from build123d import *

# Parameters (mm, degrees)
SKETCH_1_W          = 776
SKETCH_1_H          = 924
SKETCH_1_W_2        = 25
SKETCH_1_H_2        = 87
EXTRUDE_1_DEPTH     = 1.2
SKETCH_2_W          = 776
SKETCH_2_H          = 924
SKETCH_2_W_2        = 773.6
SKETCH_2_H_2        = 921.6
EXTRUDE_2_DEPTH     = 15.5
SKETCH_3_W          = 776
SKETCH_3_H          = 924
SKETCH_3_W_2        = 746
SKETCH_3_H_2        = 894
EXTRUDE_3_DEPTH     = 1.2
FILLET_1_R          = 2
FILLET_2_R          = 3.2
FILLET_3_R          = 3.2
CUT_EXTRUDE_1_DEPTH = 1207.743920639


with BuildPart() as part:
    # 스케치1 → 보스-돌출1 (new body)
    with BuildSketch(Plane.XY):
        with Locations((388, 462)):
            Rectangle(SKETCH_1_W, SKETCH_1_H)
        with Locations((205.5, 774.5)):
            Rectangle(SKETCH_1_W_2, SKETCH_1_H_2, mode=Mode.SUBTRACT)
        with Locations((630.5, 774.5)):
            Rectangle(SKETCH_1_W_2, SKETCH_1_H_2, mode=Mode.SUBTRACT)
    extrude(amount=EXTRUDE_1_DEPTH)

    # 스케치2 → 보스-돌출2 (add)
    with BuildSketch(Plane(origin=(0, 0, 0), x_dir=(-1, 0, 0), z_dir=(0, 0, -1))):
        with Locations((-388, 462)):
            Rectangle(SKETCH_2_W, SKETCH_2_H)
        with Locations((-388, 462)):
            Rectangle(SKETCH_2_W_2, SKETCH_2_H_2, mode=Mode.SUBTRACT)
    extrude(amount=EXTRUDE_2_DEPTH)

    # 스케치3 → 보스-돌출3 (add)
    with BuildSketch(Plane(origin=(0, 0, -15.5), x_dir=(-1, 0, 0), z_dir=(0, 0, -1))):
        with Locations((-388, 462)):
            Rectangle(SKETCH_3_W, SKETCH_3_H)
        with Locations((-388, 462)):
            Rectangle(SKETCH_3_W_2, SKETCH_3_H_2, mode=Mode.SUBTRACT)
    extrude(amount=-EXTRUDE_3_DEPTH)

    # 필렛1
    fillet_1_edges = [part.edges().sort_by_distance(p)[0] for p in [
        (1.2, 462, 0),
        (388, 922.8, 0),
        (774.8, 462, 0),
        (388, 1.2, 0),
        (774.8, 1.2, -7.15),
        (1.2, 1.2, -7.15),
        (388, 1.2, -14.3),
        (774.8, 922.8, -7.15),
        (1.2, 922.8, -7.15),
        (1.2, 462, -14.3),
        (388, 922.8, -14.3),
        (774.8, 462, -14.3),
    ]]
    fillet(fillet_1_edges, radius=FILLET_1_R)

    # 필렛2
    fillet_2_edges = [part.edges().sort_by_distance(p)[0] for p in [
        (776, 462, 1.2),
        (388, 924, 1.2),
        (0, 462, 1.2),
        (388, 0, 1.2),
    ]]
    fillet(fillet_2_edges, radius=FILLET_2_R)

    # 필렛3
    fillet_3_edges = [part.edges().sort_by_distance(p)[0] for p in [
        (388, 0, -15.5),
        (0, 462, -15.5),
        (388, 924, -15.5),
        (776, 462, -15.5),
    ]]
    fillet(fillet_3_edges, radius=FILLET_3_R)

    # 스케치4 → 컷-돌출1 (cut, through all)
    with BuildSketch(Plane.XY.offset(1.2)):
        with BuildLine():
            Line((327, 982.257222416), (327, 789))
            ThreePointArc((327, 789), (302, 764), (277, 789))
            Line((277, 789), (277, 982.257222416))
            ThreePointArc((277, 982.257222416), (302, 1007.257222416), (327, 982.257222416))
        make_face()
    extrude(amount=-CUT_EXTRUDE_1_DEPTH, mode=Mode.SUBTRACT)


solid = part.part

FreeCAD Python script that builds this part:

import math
import FreeCAD as App
import Part
import Sketcher

V = App.Vector
Q = App.Units.Quantity


def edges_at(feature, points):
    """Names of the edges that pass closest to the given points."""
    edges = feature.Shape.Edges
    near = lambda p: min(range(len(edges)), key=lambda i: edges[i].distToShape(Part.Vertex(*p))[0])
    return sorted({f"Edge{near(p) + 1}" for p in points})

doc = App.newDocument("Part")
body = doc.addObject("PartDesign::Body", "Body")

# Sketch on XY plane
sketch1 = doc.addObject("Sketcher::SketchObject", "Sketch")
body.addObject(sketch1)
sketch1.AttachmentSupport = (doc.XY_Plane, [""])
sketch1.MapMode = "FlatFace"
sketch1.addGeometry(Part.LineSegment(V(0, 924, 0), V(0, 0, 0)), False)
sketch1.addGeometry(Part.LineSegment(V(0, 0, 0), V(776, 0, 0)), False)
sketch1.addGeometry(Part.LineSegment(V(776, 0, 0), V(776, 924, 0)), False)
sketch1.addGeometry(Part.LineSegment(V(776, 924, 0), V(0, 924, 0)), False)
sketch1.addGeometry(Part.LineSegment(V(218, 731, 0), V(193, 731, 0)), False)
sketch1.addGeometry(Part.LineSegment(V(193, 731, 0), V(193, 818, 0)), False)
sketch1.addGeometry(Part.LineSegment(V(193, 818, 0), V(218, 818, 0)), False)
sketch1.addGeometry(Part.LineSegment(V(218, 818, 0), V(218, 731, 0)), False)
sketch1.addGeometry(Part.LineSegment(V(643, 731, 0), V(618, 731, 0)), False)
sketch1.addGeometry(Part.LineSegment(V(618, 731, 0), V(618, 818, 0)), False)
sketch1.addGeometry(Part.LineSegment(V(618, 818, 0), V(643, 818, 0)), False)
sketch1.addGeometry(Part.LineSegment(V(643, 818, 0), V(643, 731, 0)), False)
sketch1.addConstraint(Sketcher.Constraint("Coincident", 0, 2, 1, 1))
sketch1.addConstraint(Sketcher.Constraint("Coincident", 1, 2, 2, 1))
sketch1.addConstraint(Sketcher.Constraint("Coincident", 2, 2, 3, 1))
sketch1.addConstraint(Sketcher.Constraint("Coincident", 3, 2, 0, 1))
sketch1.addConstraint(Sketcher.Constraint("Coincident", 4, 2, 5, 1))
sketch1.addConstraint(Sketcher.Constraint("Coincident", 5, 2, 6, 1))
sketch1.addConstraint(Sketcher.Constraint("Coincident", 6, 2, 7, 1))
sketch1.addConstraint(Sketcher.Constraint("Coincident", 7, 2, 4, 1))
sketch1.addConstraint(Sketcher.Constraint("Coincident", 8, 2, 9, 1))
sketch1.addConstraint(Sketcher.Constraint("Coincident", 9, 2, 10, 1))
sketch1.addConstraint(Sketcher.Constraint("Coincident", 10, 2, 11, 1))
sketch1.addConstraint(Sketcher.Constraint("Coincident", 11, 2, 8, 1))
sketch1.addConstraint(Sketcher.Constraint("Vertical", 0))
sketch1.addConstraint(Sketcher.Constraint("Horizontal", 1))
sketch1.addConstraint(Sketcher.Constraint("Vertical", 2))
sketch1.addConstraint(Sketcher.Constraint("Horizontal", 3))
sketch1.addConstraint(Sketcher.Constraint("Horizontal", 4))
sketch1.addConstraint(Sketcher.Constraint("Vertical", 5))
sketch1.addConstraint(Sketcher.Constraint("Horizontal", 6))
sketch1.addConstraint(Sketcher.Constraint("Vertical", 7))
sketch1.addConstraint(Sketcher.Constraint("Horizontal", 8))
sketch1.addConstraint(Sketcher.Constraint("Vertical", 9))
sketch1.addConstraint(Sketcher.Constraint("Horizontal", 10))
sketch1.addConstraint(Sketcher.Constraint("Vertical", 11))
sketch1.addConstraint(Sketcher.Constraint("Coincident", 0, 2, -1, 1))
sketch1.addConstraint(Sketcher.Constraint("Horizontal", 7, 2, 8, 2))
sketch1.addConstraint(Sketcher.Constraint("Horizontal", 6, 2, 9, 2))
sketch1.addConstraint(Sketcher.Constraint("Equal", 6, 8))
sketch1.addConstraint(Sketcher.Constraint("DistanceX", 1, 1, 1, 2, Q("776 mm")))
sketch1.addConstraint(Sketcher.Constraint("DistanceX", 4, 2, 4, 1, Q("25 mm")))
sketch1.addConstraint(Sketcher.Constraint("DistanceY", 0, 2, 0, 1, Q("924 mm")))
sketch1.addConstraint(Sketcher.Constraint("DistanceY", 5, 1, 5, 2, Q("87 mm")))
sketch1.addConstraint(Sketcher.Constraint("DistanceX", -1, 1, 4, 2, Q("193 mm")))
sketch1.addConstraint(Sketcher.Constraint("DistanceY", -1, 1, 4, 2, Q("731 mm")))
sketch1.addConstraint(Sketcher.Constraint("DistanceX", -1, 1, 8, 2, Q("618 mm")))
pad1 = doc.addObject("PartDesign::Pad", "Pad")
body.addObject(pad1)
pad1.Profile = sketch1
pad1.Length = 1.2

# Sketch on XY plane
sketch2 = doc.addObject("Sketcher::SketchObject", "Sketch001")
body.addObject(sketch2)
sketch2.AttachmentSupport = (doc.XY_Plane, [""])
sketch2.MapMode = "FlatFace"
sketch2.addGeometry(Part.LineSegment(V(776, 924, 0), V(776, 0, 0)), False)
sketch2.addGeometry(Part.LineSegment(V(776, 0, 0), V(0, 0, 0)), False)
sketch2.addGeometry(Part.LineSegment(V(0, 0, 0), V(0, 924, 0)), False)
sketch2.addGeometry(Part.LineSegment(V(0, 924, 0), V(776, 924, 0)), False)
sketch2.addGeometry(Part.LineSegment(V(1.2, 1.2, 0), V(774.8, 1.2, 0)), False)
sketch2.addGeometry(Part.LineSegment(V(774.8, 1.2, 0), V(774.8, 922.8, 0)), False)
sketch2.addGeometry(Part.LineSegment(V(774.8, 922.8, 0), V(1.2, 922.8, 0)), False)
sketch2.addGeometry(Part.LineSegment(V(1.2, 922.8, 0), V(1.2, 1.2, 0)), False)
sketch2.addConstraint(Sketcher.Constraint("Coincident", 0, 2, 1, 1))
sketch2.addConstraint(Sketcher.Constraint("Coincident", 1, 2, 2, 1))
sketch2.addConstraint(Sketcher.Constraint("Coincident", 2, 2, 3, 1))
sketch2.addConstraint(Sketcher.Constraint("Coincident", 3, 2, 0, 1))
sketch2.addConstraint(Sketcher.Constraint("Coincident", 4, 2, 5, 1))
sketch2.addConstraint(Sketcher.Constraint("Coincident", 5, 2, 6, 1))
sketch2.addConstraint(Sketcher.Constraint("Coincident", 6, 2, 7, 1))
sketch2.addConstraint(Sketcher.Constraint("Coincident", 7, 2, 4, 1))
sketch2.addConstraint(Sketcher.Constraint("Vertical", 0))
sketch2.addConstraint(Sketcher.Constraint("Horizontal", 1))
sketch2.addConstraint(Sketcher.Constraint("Vertical", 2))
sketch2.addConstraint(Sketcher.Constraint("Horizontal", 3))
sketch2.addConstraint(Sketcher.Constraint("Horizontal", 4))
sketch2.addConstraint(Sketcher.Constraint("Vertical", 5))
sketch2.addConstraint(Sketcher.Constraint("Horizontal", 6))
sketch2.addConstraint(Sketcher.Constraint("Vertical", 7))
sketch2.addConstraint(Sketcher.Constraint("Coincident", 1, 2, -1, 1))
sketch2.addConstraint(Sketcher.Constraint("DistanceX", 1, 2, 1, 1, Q("776 mm")))
sketch2.addConstraint(Sketcher.Constraint("DistanceY", 0, 2, 0, 1, Q("924 mm")))
sketch2.addConstraint(Sketcher.Constraint("DistanceX", 4, 1, 4, 2, Q("773.6 mm")))
sketch2.addConstraint(Sketcher.Constraint("DistanceY", 5, 1, 5, 2, Q("921.6 mm")))
sketch2.addConstraint(Sketcher.Constraint("DistanceX", -1, 1, 4, 2, Q("774.8 mm")))
sketch2.addConstraint(Sketcher.Constraint("DistanceY", -1, 1, 4, 2, Q("1.2 mm")))
pad2 = doc.addObject("PartDesign::Pad", "Pad001")
body.addObject(pad2)
pad2.Profile = sketch2
pad2.Length = 15.5
pad2.Reversed = True

# Sketch on XY plane
sketch3 = doc.addObject("Sketcher::SketchObject", "Sketch002")
body.addObject(sketch3)
sketch3.AttachmentSupport = (doc.XY_Plane, [""])
sketch3.MapMode = "FlatFace"
sketch3.AttachmentOffset = App.Placement(V(0, 0, -15.5), App.Rotation())
sketch3.addGeometry(Part.LineSegment(V(776, 924, 0), V(776, 0, 0)), False)
sketch3.addGeometry(Part.LineSegment(V(776, 0, 0), V(0, 0, 0)), False)
sketch3.addGeometry(Part.LineSegment(V(0, 0, 0), V(0, 924, 0)), False)
sketch3.addGeometry(Part.LineSegment(V(0, 924, 0), V(776, 924, 0)), False)
sketch3.addGeometry(Part.LineSegment(V(15, 15, 0), V(761, 15, 0)), False)
sketch3.addGeometry(Part.LineSegment(V(761, 15, 0), V(761, 909, 0)), False)
sketch3.addGeometry(Part.LineSegment(V(761, 909, 0), V(15, 909, 0)), False)
sketch3.addGeometry(Part.LineSegment(V(15, 909, 0), V(15, 15, 0)), False)
sketch3.addConstraint(Sketcher.Constraint("Coincident", 0, 2, 1, 1))
sketch3.addConstraint(Sketcher.Constraint("Coincident", 1, 2, 2, 1))
sketch3.addConstraint(Sketcher.Constraint("Coincident", 2, 2, 3, 1))
sketch3.addConstraint(Sketcher.Constraint("Coincident", 3, 2, 0, 1))
sketch3.addConstraint(Sketcher.Constraint("Coincident", 4, 2, 5, 1))
sketch3.addConstraint(Sketcher.Constraint("Coincident", 5, 2, 6, 1))
sketch3.addConstraint(Sketcher.Constraint("Coincident", 6, 2, 7, 1))
sketch3.addConstraint(Sketcher.Constraint("Coincident", 7, 2, 4, 1))
sketch3.addConstraint(Sketcher.Constraint("Vertical", 0))
sketch3.addConstraint(Sketcher.Constraint("Horizontal", 1))
sketch3.addConstraint(Sketcher.Constraint("Vertical", 2))
sketch3.addConstraint(Sketcher.Constraint("Horizontal", 3))
sketch3.addConstraint(Sketcher.Constraint("Horizontal", 4))
sketch3.addConstraint(Sketcher.Constraint("Vertical", 5))
sketch3.addConstraint(Sketcher.Constraint("Horizontal", 6))
sketch3.addConstraint(Sketcher.Constraint("Vertical", 7))
sketch3.addConstraint(Sketcher.Constraint("Coincident", 1, 2, -1, 1))
sketch3.addConstraint(Sketcher.Constraint("DistanceX", 1, 2, 1, 1, Q("776 mm")))
sketch3.addConstraint(Sketcher.Constraint("DistanceX", 4, 1, 4, 2, Q("746 mm")))
sketch3.addConstraint(Sketcher.Constraint("DistanceY", 0, 2, 0, 1, Q("924 mm")))
sketch3.addConstraint(Sketcher.Constraint("DistanceY", 5, 1, 5, 2, Q("894 mm")))
sketch3.addConstraint(Sketcher.Constraint("DistanceX", -1, 1, 4, 2, Q("761 mm")))
sketch3.addConstraint(Sketcher.Constraint("DistanceY", -1, 1, 4, 2, Q("15 mm")))
pad3 = doc.addObject("PartDesign::Pad", "Pad002")
body.addObject(pad3)
pad3.Profile = sketch3
pad3.Length = 1.2
doc.recompute()

fillet = doc.addObject("PartDesign::Fillet", "Fillet")
body.addObject(fillet)
fillet.Base = (pad3, edges_at(pad3, [
    (1.2, 462, 0),
    (388, 922.8, 0),
    (774.8, 462, 0),
    (388, 1.2, 0),
    (774.8, 1.2, -7.15),
    (1.2, 1.2, -7.15),
    (388, 1.2, -14.3),
    (774.8, 922.8, -7.15),
    (1.2, 922.8, -7.15),
    (1.2, 462, -14.3),
    (388, 922.8, -14.3),
    (774.8, 462, -14.3),
]))
fillet.Radius = 2
doc.recompute()

fillet2 = doc.addObject("PartDesign::Fillet", "Fillet001")
body.addObject(fillet2)
fillet2.Base = (fillet, edges_at(fillet, [
    (776, 462, 1.2),
    (388, 924, 1.2),
    (0, 462, 1.2),
    (388, 0, 1.2),
]))
fillet2.Radius = 3.2
doc.recompute()

fillet3 = doc.addObject("PartDesign::Fillet", "Fillet002")
body.addObject(fillet3)
fillet3.Base = (fillet2, edges_at(fillet2, [
    (388, 0, -15.5),
    (0, 462, -15.5),
    (388, 924, -15.5),
    (776, 462, -15.5),
]))
fillet3.Radius = 3.2

# Sketch on XY plane
sketch4 = doc.addObject("Sketcher::SketchObject", "Sketch003")
body.addObject(sketch4)
sketch4.AttachmentSupport = (doc.XY_Plane, [""])
sketch4.MapMode = "FlatFace"
sketch4.AttachmentOffset = App.Placement(V(0, 0, 1.2), App.Rotation())
sketch4.addGeometry(Part.LineSegment(V(327, 789, 0), V(327, 982.257222, 0)), False)
sketch4.addGeometry(Part.ArcOfCircle(Part.Circle(V(302, 982.257222, 0), V(0, 0, 1), 25), math.radians(0), math.radians(180)), False)
sketch4.addGeometry(Part.LineSegment(V(277, 982.257222, 0), V(277, 789, 0)), False)
sketch4.addGeometry(Part.ArcOfCircle(Part.Circle(V(302, 789, 0), V(0, 0, 1), 25), math.radians(180), math.radians(360)), False)
sketch4.addConstraint(Sketcher.Constraint("Tangent", 0, 2, 1, 1))
sketch4.addConstraint(Sketcher.Constraint("Tangent", 1, 2, 2, 1))
sketch4.addConstraint(Sketcher.Constraint("Tangent", 2, 2, 3, 1))
sketch4.addConstraint(Sketcher.Constraint("Tangent", 3, 2, 0, 1))
sketch4.addConstraint(Sketcher.Constraint("Vertical", 0))
sketch4.addConstraint(Sketcher.Constraint("Vertical", 2))
sketch4.addConstraint(Sketcher.Constraint("Radius", 1, Q("25 mm")))
sketch4.addConstraint(Sketcher.Constraint("DistanceX", -1, 1, 1, 3, Q("302 mm")))
sketch4.addConstraint(Sketcher.Constraint("DistanceY", -1, 1, 3, 3, Q("789 mm")))
sketch4.addConstraint(Sketcher.Constraint("DistanceY", 0, 1, 0, 2, Q("193.257222 mm")))
pocket1 = doc.addObject("PartDesign::Pocket", "Pocket")
body.addObject(pocket1)
pocket1.Profile = sketch4
pocket1.Type = "ThroughAll"

doc.recompute()
